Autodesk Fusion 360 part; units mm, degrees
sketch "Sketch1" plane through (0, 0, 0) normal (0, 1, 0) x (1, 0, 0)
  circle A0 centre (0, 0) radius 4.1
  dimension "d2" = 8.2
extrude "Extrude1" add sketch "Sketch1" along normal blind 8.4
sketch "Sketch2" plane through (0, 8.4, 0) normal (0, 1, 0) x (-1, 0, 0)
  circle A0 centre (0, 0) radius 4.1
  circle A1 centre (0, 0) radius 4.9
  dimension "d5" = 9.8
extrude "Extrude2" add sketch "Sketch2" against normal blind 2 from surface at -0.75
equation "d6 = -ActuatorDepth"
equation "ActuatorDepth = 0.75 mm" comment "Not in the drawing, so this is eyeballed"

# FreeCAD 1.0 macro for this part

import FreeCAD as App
import Part
import Sketcher

V = App.Vector
Q = App.Units.Quantity

doc = App.newDocument("Part")
body = doc.addObject("PartDesign::Body", "Body")

# Sketch on XZ plane
sketch1 = doc.addObject("Sketcher::SketchObject", "Sketch")
body.addObject(sketch1)
sketch1.AttachmentSupport = (doc.XZ_Plane, [""])
sketch1.MapMode = "FlatFace"
sketch1.addGeometry(Part.Circle(V(0, 0, 0), V(0, 0, 1), 4.1), False)
sketch1.addConstraint([
    Sketcher.Constraint("Coincident", 0, 3, -1, 1),
    Sketcher.Constraint("Diameter", 0, Q("8.2 mm")),
])
pad1 = doc.addObject("PartDesign::Pad", "Pad")
body.addObject(pad1)
pad1.Profile = sketch1
pad1.Length = 8.4
pad1.Reversed = True

# Sketch on XZ plane
sketch2 = doc.addObject("Sketcher::SketchObject", "Sketch001")
body.addObject(sketch2)
sketch2.AttachmentSupport = (doc.XZ_Plane, [""])
sketch2.MapMode = "FlatFace"
sketch2.AttachmentOffset = App.Placement(V(0, 0, -7.65), App.Rotation())
sketch2.addGeometry([
    Part.Circle(V(0, 0, 0), V(0, 0, 1), 4.9),
    Part.Circle(V(0, 0, 0), V(0, 0, 1), 4.1),
], False)
sketch2.addConstraint([
    Sketcher.Constraint("Coincident", 0, 3, -1, 1),
    Sketcher.Constraint("Coincident", 1, 3, -1, 1),
    Sketcher.Constraint("Diameter", 0, Q("9.8 mm")),
    Sketcher.Constraint("Diameter", 1, Q("8.2 mm")),
])
pad2 = doc.addObject("PartDesign::Pad", "Pad001")
body.addObject(pad2)
pad2.Profile = sketch2
pad2.Length = 2

doc.recompute()
